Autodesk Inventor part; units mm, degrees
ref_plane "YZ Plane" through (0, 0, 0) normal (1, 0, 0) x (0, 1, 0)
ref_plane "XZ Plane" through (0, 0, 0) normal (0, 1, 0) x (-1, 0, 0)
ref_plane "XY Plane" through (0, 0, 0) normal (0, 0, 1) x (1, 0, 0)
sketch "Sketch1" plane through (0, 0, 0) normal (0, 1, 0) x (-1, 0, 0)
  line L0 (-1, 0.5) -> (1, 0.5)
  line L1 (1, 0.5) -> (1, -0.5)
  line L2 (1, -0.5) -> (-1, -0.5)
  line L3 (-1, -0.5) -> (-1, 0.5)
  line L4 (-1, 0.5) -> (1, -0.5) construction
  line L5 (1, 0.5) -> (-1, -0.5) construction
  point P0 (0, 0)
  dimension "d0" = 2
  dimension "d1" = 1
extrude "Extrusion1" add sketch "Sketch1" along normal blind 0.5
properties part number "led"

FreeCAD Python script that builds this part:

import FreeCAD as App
import Part
import Sketcher
from FreeCAD import Vector
Q = App.Units.Quantity


def add_polygon(sketch, points):
    """Adds a closed chain of lines whose ends are joined by coincident constraints."""
    first, n = sketch.GeometryCount, len(points)
    for a, b in zip(points, points[1:] + points[:1]):
        sketch.addGeometry(Part.LineSegment(App.Vector(*a, 0), App.Vector(*b, 0)), False)
    for i in range(n):
        sketch.addConstraint(Sketcher.Constraint("Coincident", first + i, 2, first + (i + 1) % n, 1))

doc = App.newDocument("Part")
body = doc.addObject("PartDesign::Body", "Body")

# Sketch on XZ plane
sketch1 = body.newObject("Sketcher::SketchObject", "Sketch")
sketch1.AttachmentSupport = (doc.getObject("XZ_Plane"), [""])
sketch1.MapMode = "FlatFace"
add_polygon(sketch1, [(-1, 0.5), (1, 0.5), (1, -0.5), (-1, -0.5)])  # lines 0-3
sketch1.addConstraint(Sketcher.Constraint("Horizontal", 0))
sketch1.addConstraint(Sketcher.Constraint("Vertical", 1))
sketch1.addConstraint(Sketcher.Constraint("Horizontal", 2))
sketch1.addConstraint(Sketcher.Constraint("Vertical", 3))
sketch1.addConstraint(Sketcher.Constraint("Symmetric", 0, 2, 2, 2, -1, 1))
sketch1.addConstraint(Sketcher.Constraint("DistanceX", 0, 1, 0, 2, Q("2 mm")))
sketch1.addConstraint(Sketcher.Constraint("DistanceY", 1, 2, 1, 1, Q("1 mm")))
pad1 = body.newObject("PartDesign::Pad", "Pad")
pad1.Profile = sketch1
pad1.Length = 0.5
pad1.Reversed = True

doc.recompute()
